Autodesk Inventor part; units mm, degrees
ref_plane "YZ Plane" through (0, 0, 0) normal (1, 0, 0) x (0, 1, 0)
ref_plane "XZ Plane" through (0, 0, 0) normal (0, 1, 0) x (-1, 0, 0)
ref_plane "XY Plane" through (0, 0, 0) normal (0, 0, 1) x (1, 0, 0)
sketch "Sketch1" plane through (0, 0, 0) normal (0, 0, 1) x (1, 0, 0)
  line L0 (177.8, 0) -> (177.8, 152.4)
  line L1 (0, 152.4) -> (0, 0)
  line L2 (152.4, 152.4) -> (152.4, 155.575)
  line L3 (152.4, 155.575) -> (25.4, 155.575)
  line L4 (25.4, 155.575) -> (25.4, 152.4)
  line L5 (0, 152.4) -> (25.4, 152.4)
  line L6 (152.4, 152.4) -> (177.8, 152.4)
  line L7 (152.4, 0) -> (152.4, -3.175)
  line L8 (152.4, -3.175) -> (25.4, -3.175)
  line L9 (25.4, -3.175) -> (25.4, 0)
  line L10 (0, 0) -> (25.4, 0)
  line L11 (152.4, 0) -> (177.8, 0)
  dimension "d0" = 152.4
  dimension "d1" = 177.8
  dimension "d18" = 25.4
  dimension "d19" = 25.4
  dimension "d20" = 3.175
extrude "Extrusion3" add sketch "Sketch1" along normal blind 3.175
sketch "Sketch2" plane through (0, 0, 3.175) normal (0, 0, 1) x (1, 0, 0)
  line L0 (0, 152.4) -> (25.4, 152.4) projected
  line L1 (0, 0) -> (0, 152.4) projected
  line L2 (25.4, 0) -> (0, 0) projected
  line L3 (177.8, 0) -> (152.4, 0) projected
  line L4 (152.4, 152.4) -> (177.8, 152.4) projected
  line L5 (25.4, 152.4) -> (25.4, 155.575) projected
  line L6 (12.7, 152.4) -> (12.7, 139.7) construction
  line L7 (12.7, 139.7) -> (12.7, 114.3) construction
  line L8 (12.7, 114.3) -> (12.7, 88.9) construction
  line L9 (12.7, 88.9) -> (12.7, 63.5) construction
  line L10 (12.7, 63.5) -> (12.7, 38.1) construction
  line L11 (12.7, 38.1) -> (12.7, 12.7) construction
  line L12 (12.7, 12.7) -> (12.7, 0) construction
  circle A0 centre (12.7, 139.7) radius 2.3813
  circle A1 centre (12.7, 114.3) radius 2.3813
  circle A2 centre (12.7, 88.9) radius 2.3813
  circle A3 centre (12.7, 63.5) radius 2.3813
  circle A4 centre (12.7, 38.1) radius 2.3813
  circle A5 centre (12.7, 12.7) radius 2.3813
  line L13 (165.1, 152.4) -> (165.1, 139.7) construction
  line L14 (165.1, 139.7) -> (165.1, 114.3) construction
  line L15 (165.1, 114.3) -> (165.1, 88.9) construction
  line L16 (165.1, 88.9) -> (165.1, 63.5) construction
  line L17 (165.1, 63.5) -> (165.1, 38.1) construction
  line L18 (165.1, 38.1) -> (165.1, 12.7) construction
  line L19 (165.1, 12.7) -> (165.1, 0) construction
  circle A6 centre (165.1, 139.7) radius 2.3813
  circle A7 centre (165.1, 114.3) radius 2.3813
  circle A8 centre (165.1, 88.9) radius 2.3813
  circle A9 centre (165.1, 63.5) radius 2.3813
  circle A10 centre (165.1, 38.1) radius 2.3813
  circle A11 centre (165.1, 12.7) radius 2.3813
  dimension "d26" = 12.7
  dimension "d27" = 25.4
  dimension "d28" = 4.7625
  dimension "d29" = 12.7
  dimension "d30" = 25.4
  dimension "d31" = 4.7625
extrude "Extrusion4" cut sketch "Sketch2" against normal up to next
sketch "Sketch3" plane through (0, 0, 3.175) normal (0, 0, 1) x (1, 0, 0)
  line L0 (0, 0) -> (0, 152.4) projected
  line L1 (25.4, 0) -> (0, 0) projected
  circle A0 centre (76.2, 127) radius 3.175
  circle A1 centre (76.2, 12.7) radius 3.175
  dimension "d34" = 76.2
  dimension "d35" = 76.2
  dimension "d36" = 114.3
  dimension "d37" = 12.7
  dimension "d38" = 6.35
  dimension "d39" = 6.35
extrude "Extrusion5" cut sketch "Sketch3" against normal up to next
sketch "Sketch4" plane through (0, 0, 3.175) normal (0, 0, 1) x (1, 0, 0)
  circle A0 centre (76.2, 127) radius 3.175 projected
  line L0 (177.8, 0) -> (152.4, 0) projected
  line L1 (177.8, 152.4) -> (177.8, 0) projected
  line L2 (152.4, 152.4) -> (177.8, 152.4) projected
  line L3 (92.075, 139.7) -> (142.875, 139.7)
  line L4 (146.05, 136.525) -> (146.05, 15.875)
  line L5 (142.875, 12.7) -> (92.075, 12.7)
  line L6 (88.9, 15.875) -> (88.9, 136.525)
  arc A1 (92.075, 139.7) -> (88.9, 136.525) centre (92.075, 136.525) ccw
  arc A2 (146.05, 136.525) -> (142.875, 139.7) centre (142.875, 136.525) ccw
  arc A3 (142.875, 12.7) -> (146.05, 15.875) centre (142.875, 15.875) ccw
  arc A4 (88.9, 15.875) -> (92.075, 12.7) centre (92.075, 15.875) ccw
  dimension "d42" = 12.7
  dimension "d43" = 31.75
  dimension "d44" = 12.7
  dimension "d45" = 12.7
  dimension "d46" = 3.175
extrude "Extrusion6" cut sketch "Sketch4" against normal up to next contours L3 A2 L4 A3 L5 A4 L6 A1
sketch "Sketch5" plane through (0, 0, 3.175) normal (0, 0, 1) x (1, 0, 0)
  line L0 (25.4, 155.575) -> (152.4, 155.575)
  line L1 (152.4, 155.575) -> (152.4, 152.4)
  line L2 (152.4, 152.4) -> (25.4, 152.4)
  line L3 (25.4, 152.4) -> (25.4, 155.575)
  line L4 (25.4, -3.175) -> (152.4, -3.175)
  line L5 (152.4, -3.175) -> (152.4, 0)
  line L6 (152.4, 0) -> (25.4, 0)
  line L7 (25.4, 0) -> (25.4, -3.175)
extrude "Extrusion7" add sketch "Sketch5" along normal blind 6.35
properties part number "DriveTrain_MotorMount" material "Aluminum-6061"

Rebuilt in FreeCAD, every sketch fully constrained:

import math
import FreeCAD as App
import Part
import Sketcher
Q = App.Units.Quantity


def add_polygon(sketch, points):
    """Adds a closed chain of lines whose ends are joined by coincident constraints."""
    first, n = sketch.GeometryCount, len(points)
    for a, b in zip(points, points[1:] + points[:1]):
        sketch.addGeometry(Part.LineSegment(App.Vector(*a, 0), App.Vector(*b, 0)), False)
    for i in range(n):
        sketch.addConstraint(Sketcher.Constraint("Coincident", first + i, 2, first + (i + 1) % n, 1))

doc = App.newDocument("Part")
body = doc.addObject("PartDesign::Body", "Body")

sketch1 = body.newObject("Sketcher::SketchObject", "Sketch")
sketch1.AttachmentSupport = (doc.getObject("XY_Plane"), [""])
sketch1.MapMode = "FlatFace"
add_polygon(sketch1, [(152.4, 0), (177.8, 0), (177.8, 152.4), (152.4, 152.4), (152.4, 155.6), (25.4, 155.6), (25.4, 152.4), (0, 152.4), (0, 0), (25.4, 0), (25.4, -3.2), (152.4, -3.2)])
sketch1.addConstraint([
    Sketcher.Constraint("Horizontal", 0),
    Sketcher.Constraint("Vertical", 1),
    Sketcher.Constraint("Horizontal", 2),
    Sketcher.Constraint("Vertical", 3),
    Sketcher.Constraint("Horizontal", 4),
    Sketcher.Constraint("Vertical", 5),
    Sketcher.Constraint("Horizontal", 6),
    Sketcher.Constraint("Vertical", 7),
    Sketcher.Constraint("Horizontal", 8),
    Sketcher.Constraint("Vertical", 9),
    Sketcher.Constraint("Horizontal", 10),
    Sketcher.Constraint("Vertical", 11),
    Sketcher.Constraint("Coincident", 7, 2, -1, 1),
    Sketcher.Constraint("PointOnObject", 0, 2, -1),
    Sketcher.Constraint("Horizontal", 2, 2, 5, 2),
    Sketcher.Constraint("Vertical", 5, 2, 8, 2),
    Sketcher.Constraint("Vertical", 3, 2, 10, 2),
    Sketcher.Constraint("Equal", 2, 6),
    Sketcher.Constraint("Equal", 5, 9),
    Sketcher.Constraint("DistanceX", 0, 1, 0, 2, Q("1 in")),
    Sketcher.Constraint("DistanceY", 1, 1, 1, 2, Q("6 in")),
    Sketcher.Constraint("DistanceX", -1, 1, 0, 2, Q("7 in")),
    Sketcher.Constraint("DistanceY", 3, 1, 3, 2, Q("0.125 in")),
])
pad1 = body.newObject("PartDesign::Pad", "Pad")
pad1.Profile = sketch1
pad1.Length = Q("0.125 in")

sketch2 = body.newObject("Sketcher::SketchObject", "Sketch001")
sketch2.AttachmentSupport = (doc.getObject("XY_Plane"), [""])
sketch2.MapMode = "FlatFace"
sketch2.AttachmentOffset = App.Placement(App.Vector(0, 0, 0.125 * 25.4), App.Rotation())
sketch2.addGeometry([
    Part.Circle(App.Vector(12.7, 139.7, 0), App.Vector(0, 0, 1), 2.4),
    Part.Circle(App.Vector(12.7, 114.3, 0), App.Vector(0, 0, 1), 2.4),
    Part.Circle(App.Vector(12.7, 88.9, 0), App.Vector(0, 0, 1), 2.4),
    Part.Circle(App.Vector(12.7, 63.5, 0), App.Vector(0, 0, 1), 2.4),
    Part.Circle(App.Vector(12.7, 38.1, 0), App.Vector(0, 0, 1), 2.4),
    Part.Circle(App.Vector(12.7, 12.7, 0), App.Vector(0, 0, 1), 2.4),
    Part.Circle(App.Vector(165.1, 139.7, 0), App.Vector(0, 0, 1), 2.4),
    Part.Circle(App.Vector(165.1, 114.3, 0), App.Vector(0, 0, 1), 2.4),
    Part.Circle(App.Vector(165.1, 88.9, 0), App.Vector(0, 0, 1), 2.4),
    Part.Circle(App.Vector(165.1, 63.5, 0), App.Vector(0, 0, 1), 2.4),
    Part.Circle(App.Vector(165.1, 38.1, 0), App.Vector(0, 0, 1), 2.4),
    Part.Circle(App.Vector(165.1, 12.7, 0), App.Vector(0, 0, 1), 2.4),
], False)
sketch2.addConstraint([
    Sketcher.Constraint("Equal", 0, 1),
    Sketcher.Constraint("Equal", 1, 2),
    Sketcher.Constraint("Equal", 2, 3),
    Sketcher.Constraint("Equal", 3, 4),
    Sketcher.Constraint("Equal", 4, 5),
    Sketcher.Constraint("Equal", 5, 6),
    Sketcher.Constraint("Equal", 6, 7),
    Sketcher.Constraint("Equal", 7, 8),
    Sketcher.Constraint("Equal", 8, 9),
    Sketcher.Constraint("Equal", 9, 10),
    Sketcher.Constraint("Equal", 10, 11),
    Sketcher.Constraint("Horizontal", 0, 3, 6, 3),
    Sketcher.Constraint("Horizontal", 1, 3, 7, 3),
    Sketcher.Constraint("Horizontal", 2, 3, 8, 3),
    Sketcher.Constraint("Horizontal", 3, 3, 9, 3),
    Sketcher.Constraint("Horizontal", 4, 3, 10, 3),
    Sketcher.Constraint("Horizontal", 5, 3, 11, 3),
    Sketcher.Constraint("Vertical", 0, 3, 1, 3),
    Sketcher.Constraint("Vertical", 1, 3, 2, 3),
    Sketcher.Constraint("Vertical", 2, 3, 3, 3),
    Sketcher.Constraint("Vertical", 3, 3, 4, 3),
    Sketcher.Constraint("Vertical", 4, 3, 5, 3),
    Sketcher.Constraint("Vertical", 6, 3, 7, 3),
    Sketcher.Constraint("Vertical", 7, 3, 8, 3),
    Sketcher.Constraint("Vertical", 8, 3, 9, 3),
    Sketcher.Constraint("Vertical", 9, 3, 10, 3),
    Sketcher.Constraint("Vertical", 10, 3, 11, 3),
    Sketcher.Constraint("Diameter", 0, Q("0.1875 in")),
    Sketcher.Constraint("DistanceY", 1, 3, 0, 3, Q("1 in")),
    Sketcher.Constraint("DistanceY", 2, 3, 1, 3, Q("1 in")),
    Sketcher.Constraint("DistanceY", 3, 3, 2, 3, Q("1 in")),
    Sketcher.Constraint("DistanceY", 4, 3, 3, 3, Q("1 in")),
    Sketcher.Constraint("DistanceY", 5, 3, 4, 3, Q("1 in")),
    Sketcher.Constraint("DistanceX", -1, 1, 0, 3, Q("0.5 in")),
    Sketcher.Constraint("DistanceY", -1, 1, 5, 3, Q("0.5 in")),
    Sketcher.Constraint("DistanceX", 0, 3, 6, 3, Q("6 in")),
])
pocket1 = body.newObject("PartDesign::Pocket", "Pocket")
pocket1.Profile = sketch2
pocket1.Type = "UpToFirst"

sketch3 = body.newObject("Sketcher::SketchObject", "Sketch002")
sketch3.AttachmentSupport = (doc.getObject("XY_Plane"), [""])
sketch3.MapMode = "FlatFace"
sketch3.AttachmentOffset = App.Placement(App.Vector(0, 0, 0.125 * 25.4), App.Rotation())
sketch3.addGeometry([
    Part.Circle(App.Vector(76.2, 127, 0), App.Vector(0, 0, 1), 3.2),
    Part.Circle(App.Vector(76.2, 12.7, 0), App.Vector(0, 0, 1), 3.2),
], False)
sketch3.addConstraint([
    Sketcher.Constraint("Equal", 0, 1),
    Sketcher.Constraint("Vertical", 0, 3, 1, 3),
    Sketcher.Constraint("Diameter", 0, Q("0.25 in")),
    Sketcher.Constraint("DistanceX", -1, 1, 0, 3, Q("3 in")),
    Sketcher.Constraint("DistanceY", -1, 1, 1, 3, Q("0.5 in")),
    Sketcher.Constraint("DistanceY", 1, 3, 0, 3, Q("4.5 in")),
])
pocket2 = body.newObject("PartDesign::Pocket", "Pocket001")
pocket2.Profile = sketch3
pocket2.Length = Q("0.125 in")

sketch4 = body.newObject("Sketcher::SketchObject", "Sketch003")
sketch4.AttachmentSupport = (doc.getObject("XY_Plane"), [""])
sketch4.MapMode = "FlatFace"
sketch4.AttachmentOffset = App.Placement(App.Vector(0, 0, 0.125 * 25.4), App.Rotation())
sketch4.addGeometry([
    Part.LineSegment(App.Vector(142.9, 139.7, 0), App.Vector(92.1, 139.7, 0)),
    Part.ArcOfCircle(Part.Circle(App.Vector(92.1, 136.5, 0), App.Vector(0, 0, 1), 3.2), math.radians(90), math.radians(180)),
    Part.LineSegment(App.Vector(88.9, 136.5, 0), App.Vector(88.9, 15.9, 0)),
    Part.ArcOfCircle(Part.Circle(App.Vector(92.1, 15.9, 0), App.Vector(0, 0, 1), 3.2), math.radians(180), math.radians(270)),
    Part.LineSegment(App.Vector(92.1, 12.7, 0), App.Vector(142.9, 12.7, 0)),
    Part.ArcOfCircle(Part.Circle(App.Vector(142.9, 15.9, 0), App.Vector(0, 0, 1), 3.2), math.radians(-90), math.radians(0)),
    Part.LineSegment(App.Vector(146.1, 15.9, 0), App.Vector(146.1, 136.5, 0)),
    Part.ArcOfCircle(Part.Circle(App.Vector(142.9, 136.5, 0), App.Vector(0, 0, 1), 3.2), math.radians(0), math.radians(90)),
], False)
sketch4.addConstraint([
    Sketcher.Constraint("Tangent", 0, 2, 1, 1),
    Sketcher.Constraint("Tangent", 1, 2, 2, 1),
    Sketcher.Constraint("Tangent", 2, 2, 3, 1),
    Sketcher.Constraint("Tangent", 3, 2, 4, 1),
    Sketcher.Constraint("Tangent", 4, 2, 5, 1),
    Sketcher.Constraint("Tangent", 5, 2, 6, 1),
    Sketcher.Constraint("Tangent", 6, 2, 7, 1),
    Sketcher.Constraint("Tangent", 7, 2, 0, 1),
    Sketcher.Constraint("Horizontal", 0),
    Sketcher.Constraint("Vertical", 2),
    Sketcher.Constraint("Horizontal", 4),
    Sketcher.Constraint("Vertical", 6),
    Sketcher.Constraint("Equal", 1, 3),
    Sketcher.Constraint("Equal", 3, 5),
    Sketcher.Constraint("Equal", 5, 7),
    Sketcher.Constraint("Radius", 1, Q("0.125 in")),
    Sketcher.Constraint("DistanceY", -1, 1, 3, 2, Q("0.5 in")),
    Sketcher.Constraint("DistanceX", 0, 2, 0, 1, Q("2 in")),
    Sketcher.Constraint("DistanceY", 2, 2, 2, 1, Q("4.75 in")),
    Sketcher.Constraint("DistanceX", -1, 1, 1, 2, Q("3.5 in")),
])
pocket3 = body.newObject("PartDesign::Pocket", "Pocket002")
pocket3.Profile = sketch4
pocket3.Type = "UpToFirst"

sketch5 = body.newObject("Sketcher::SketchObject", "Sketch004")
sketch5.AttachmentSupport = (doc.getObject("XY_Plane"), [""])
sketch5.MapMode = "FlatFace"
sketch5.AttachmentOffset = App.Placement(App.Vector(0, 0, 0.125 * 25.4), App.Rotation())
add_polygon(sketch5, [(152.4, 155.6), (25.4, 155.6), (25.4, 152.4), (152.4, 152.4)])
add_polygon(sketch5, [(25.4, 0), (25.4, -3.2), (152.4, -3.2), (152.4, 0)])
sketch5.addConstraint([
    Sketcher.Constraint("Horizontal", 0),
    Sketcher.Constraint("Vertical", 1),
    Sketcher.Constraint("Horizontal", 2),
    Sketcher.Constraint("Vertical", 3),
    Sketcher.Constraint("Vertical", 4),
    Sketcher.Constraint("Horizontal", 5),
    Sketcher.Constraint("Vertical", 6),
    Sketcher.Constraint("Horizontal", 7),
    Sketcher.Constraint("PointOnObject", 6, 2, -1),
    Sketcher.Constraint("Vertical", 1, 2, 4, 2),
    Sketcher.Constraint("Vertical", 3, 2, 5, 2),
    Sketcher.Constraint("Equal", 3, 4),
    Sketcher.Constraint("DistanceX", 0, 2, 0, 1, Q("5 in")),
    Sketcher.Constraint("DistanceX", -1, 1, 0, 2, Q("1 in")),
    Sketcher.Constraint("DistanceY", -1, 1, 1, 2, Q("6 in")),
    Sketcher.Constraint("DistanceY", 1, 2, 1, 1, Q("0.125 in")),
])
pad2 = body.newObject("PartDesign::Pad", "Pad001")
pad2.Profile = sketch5
pad2.Length = Q("0.25 in")

doc.recompute()
